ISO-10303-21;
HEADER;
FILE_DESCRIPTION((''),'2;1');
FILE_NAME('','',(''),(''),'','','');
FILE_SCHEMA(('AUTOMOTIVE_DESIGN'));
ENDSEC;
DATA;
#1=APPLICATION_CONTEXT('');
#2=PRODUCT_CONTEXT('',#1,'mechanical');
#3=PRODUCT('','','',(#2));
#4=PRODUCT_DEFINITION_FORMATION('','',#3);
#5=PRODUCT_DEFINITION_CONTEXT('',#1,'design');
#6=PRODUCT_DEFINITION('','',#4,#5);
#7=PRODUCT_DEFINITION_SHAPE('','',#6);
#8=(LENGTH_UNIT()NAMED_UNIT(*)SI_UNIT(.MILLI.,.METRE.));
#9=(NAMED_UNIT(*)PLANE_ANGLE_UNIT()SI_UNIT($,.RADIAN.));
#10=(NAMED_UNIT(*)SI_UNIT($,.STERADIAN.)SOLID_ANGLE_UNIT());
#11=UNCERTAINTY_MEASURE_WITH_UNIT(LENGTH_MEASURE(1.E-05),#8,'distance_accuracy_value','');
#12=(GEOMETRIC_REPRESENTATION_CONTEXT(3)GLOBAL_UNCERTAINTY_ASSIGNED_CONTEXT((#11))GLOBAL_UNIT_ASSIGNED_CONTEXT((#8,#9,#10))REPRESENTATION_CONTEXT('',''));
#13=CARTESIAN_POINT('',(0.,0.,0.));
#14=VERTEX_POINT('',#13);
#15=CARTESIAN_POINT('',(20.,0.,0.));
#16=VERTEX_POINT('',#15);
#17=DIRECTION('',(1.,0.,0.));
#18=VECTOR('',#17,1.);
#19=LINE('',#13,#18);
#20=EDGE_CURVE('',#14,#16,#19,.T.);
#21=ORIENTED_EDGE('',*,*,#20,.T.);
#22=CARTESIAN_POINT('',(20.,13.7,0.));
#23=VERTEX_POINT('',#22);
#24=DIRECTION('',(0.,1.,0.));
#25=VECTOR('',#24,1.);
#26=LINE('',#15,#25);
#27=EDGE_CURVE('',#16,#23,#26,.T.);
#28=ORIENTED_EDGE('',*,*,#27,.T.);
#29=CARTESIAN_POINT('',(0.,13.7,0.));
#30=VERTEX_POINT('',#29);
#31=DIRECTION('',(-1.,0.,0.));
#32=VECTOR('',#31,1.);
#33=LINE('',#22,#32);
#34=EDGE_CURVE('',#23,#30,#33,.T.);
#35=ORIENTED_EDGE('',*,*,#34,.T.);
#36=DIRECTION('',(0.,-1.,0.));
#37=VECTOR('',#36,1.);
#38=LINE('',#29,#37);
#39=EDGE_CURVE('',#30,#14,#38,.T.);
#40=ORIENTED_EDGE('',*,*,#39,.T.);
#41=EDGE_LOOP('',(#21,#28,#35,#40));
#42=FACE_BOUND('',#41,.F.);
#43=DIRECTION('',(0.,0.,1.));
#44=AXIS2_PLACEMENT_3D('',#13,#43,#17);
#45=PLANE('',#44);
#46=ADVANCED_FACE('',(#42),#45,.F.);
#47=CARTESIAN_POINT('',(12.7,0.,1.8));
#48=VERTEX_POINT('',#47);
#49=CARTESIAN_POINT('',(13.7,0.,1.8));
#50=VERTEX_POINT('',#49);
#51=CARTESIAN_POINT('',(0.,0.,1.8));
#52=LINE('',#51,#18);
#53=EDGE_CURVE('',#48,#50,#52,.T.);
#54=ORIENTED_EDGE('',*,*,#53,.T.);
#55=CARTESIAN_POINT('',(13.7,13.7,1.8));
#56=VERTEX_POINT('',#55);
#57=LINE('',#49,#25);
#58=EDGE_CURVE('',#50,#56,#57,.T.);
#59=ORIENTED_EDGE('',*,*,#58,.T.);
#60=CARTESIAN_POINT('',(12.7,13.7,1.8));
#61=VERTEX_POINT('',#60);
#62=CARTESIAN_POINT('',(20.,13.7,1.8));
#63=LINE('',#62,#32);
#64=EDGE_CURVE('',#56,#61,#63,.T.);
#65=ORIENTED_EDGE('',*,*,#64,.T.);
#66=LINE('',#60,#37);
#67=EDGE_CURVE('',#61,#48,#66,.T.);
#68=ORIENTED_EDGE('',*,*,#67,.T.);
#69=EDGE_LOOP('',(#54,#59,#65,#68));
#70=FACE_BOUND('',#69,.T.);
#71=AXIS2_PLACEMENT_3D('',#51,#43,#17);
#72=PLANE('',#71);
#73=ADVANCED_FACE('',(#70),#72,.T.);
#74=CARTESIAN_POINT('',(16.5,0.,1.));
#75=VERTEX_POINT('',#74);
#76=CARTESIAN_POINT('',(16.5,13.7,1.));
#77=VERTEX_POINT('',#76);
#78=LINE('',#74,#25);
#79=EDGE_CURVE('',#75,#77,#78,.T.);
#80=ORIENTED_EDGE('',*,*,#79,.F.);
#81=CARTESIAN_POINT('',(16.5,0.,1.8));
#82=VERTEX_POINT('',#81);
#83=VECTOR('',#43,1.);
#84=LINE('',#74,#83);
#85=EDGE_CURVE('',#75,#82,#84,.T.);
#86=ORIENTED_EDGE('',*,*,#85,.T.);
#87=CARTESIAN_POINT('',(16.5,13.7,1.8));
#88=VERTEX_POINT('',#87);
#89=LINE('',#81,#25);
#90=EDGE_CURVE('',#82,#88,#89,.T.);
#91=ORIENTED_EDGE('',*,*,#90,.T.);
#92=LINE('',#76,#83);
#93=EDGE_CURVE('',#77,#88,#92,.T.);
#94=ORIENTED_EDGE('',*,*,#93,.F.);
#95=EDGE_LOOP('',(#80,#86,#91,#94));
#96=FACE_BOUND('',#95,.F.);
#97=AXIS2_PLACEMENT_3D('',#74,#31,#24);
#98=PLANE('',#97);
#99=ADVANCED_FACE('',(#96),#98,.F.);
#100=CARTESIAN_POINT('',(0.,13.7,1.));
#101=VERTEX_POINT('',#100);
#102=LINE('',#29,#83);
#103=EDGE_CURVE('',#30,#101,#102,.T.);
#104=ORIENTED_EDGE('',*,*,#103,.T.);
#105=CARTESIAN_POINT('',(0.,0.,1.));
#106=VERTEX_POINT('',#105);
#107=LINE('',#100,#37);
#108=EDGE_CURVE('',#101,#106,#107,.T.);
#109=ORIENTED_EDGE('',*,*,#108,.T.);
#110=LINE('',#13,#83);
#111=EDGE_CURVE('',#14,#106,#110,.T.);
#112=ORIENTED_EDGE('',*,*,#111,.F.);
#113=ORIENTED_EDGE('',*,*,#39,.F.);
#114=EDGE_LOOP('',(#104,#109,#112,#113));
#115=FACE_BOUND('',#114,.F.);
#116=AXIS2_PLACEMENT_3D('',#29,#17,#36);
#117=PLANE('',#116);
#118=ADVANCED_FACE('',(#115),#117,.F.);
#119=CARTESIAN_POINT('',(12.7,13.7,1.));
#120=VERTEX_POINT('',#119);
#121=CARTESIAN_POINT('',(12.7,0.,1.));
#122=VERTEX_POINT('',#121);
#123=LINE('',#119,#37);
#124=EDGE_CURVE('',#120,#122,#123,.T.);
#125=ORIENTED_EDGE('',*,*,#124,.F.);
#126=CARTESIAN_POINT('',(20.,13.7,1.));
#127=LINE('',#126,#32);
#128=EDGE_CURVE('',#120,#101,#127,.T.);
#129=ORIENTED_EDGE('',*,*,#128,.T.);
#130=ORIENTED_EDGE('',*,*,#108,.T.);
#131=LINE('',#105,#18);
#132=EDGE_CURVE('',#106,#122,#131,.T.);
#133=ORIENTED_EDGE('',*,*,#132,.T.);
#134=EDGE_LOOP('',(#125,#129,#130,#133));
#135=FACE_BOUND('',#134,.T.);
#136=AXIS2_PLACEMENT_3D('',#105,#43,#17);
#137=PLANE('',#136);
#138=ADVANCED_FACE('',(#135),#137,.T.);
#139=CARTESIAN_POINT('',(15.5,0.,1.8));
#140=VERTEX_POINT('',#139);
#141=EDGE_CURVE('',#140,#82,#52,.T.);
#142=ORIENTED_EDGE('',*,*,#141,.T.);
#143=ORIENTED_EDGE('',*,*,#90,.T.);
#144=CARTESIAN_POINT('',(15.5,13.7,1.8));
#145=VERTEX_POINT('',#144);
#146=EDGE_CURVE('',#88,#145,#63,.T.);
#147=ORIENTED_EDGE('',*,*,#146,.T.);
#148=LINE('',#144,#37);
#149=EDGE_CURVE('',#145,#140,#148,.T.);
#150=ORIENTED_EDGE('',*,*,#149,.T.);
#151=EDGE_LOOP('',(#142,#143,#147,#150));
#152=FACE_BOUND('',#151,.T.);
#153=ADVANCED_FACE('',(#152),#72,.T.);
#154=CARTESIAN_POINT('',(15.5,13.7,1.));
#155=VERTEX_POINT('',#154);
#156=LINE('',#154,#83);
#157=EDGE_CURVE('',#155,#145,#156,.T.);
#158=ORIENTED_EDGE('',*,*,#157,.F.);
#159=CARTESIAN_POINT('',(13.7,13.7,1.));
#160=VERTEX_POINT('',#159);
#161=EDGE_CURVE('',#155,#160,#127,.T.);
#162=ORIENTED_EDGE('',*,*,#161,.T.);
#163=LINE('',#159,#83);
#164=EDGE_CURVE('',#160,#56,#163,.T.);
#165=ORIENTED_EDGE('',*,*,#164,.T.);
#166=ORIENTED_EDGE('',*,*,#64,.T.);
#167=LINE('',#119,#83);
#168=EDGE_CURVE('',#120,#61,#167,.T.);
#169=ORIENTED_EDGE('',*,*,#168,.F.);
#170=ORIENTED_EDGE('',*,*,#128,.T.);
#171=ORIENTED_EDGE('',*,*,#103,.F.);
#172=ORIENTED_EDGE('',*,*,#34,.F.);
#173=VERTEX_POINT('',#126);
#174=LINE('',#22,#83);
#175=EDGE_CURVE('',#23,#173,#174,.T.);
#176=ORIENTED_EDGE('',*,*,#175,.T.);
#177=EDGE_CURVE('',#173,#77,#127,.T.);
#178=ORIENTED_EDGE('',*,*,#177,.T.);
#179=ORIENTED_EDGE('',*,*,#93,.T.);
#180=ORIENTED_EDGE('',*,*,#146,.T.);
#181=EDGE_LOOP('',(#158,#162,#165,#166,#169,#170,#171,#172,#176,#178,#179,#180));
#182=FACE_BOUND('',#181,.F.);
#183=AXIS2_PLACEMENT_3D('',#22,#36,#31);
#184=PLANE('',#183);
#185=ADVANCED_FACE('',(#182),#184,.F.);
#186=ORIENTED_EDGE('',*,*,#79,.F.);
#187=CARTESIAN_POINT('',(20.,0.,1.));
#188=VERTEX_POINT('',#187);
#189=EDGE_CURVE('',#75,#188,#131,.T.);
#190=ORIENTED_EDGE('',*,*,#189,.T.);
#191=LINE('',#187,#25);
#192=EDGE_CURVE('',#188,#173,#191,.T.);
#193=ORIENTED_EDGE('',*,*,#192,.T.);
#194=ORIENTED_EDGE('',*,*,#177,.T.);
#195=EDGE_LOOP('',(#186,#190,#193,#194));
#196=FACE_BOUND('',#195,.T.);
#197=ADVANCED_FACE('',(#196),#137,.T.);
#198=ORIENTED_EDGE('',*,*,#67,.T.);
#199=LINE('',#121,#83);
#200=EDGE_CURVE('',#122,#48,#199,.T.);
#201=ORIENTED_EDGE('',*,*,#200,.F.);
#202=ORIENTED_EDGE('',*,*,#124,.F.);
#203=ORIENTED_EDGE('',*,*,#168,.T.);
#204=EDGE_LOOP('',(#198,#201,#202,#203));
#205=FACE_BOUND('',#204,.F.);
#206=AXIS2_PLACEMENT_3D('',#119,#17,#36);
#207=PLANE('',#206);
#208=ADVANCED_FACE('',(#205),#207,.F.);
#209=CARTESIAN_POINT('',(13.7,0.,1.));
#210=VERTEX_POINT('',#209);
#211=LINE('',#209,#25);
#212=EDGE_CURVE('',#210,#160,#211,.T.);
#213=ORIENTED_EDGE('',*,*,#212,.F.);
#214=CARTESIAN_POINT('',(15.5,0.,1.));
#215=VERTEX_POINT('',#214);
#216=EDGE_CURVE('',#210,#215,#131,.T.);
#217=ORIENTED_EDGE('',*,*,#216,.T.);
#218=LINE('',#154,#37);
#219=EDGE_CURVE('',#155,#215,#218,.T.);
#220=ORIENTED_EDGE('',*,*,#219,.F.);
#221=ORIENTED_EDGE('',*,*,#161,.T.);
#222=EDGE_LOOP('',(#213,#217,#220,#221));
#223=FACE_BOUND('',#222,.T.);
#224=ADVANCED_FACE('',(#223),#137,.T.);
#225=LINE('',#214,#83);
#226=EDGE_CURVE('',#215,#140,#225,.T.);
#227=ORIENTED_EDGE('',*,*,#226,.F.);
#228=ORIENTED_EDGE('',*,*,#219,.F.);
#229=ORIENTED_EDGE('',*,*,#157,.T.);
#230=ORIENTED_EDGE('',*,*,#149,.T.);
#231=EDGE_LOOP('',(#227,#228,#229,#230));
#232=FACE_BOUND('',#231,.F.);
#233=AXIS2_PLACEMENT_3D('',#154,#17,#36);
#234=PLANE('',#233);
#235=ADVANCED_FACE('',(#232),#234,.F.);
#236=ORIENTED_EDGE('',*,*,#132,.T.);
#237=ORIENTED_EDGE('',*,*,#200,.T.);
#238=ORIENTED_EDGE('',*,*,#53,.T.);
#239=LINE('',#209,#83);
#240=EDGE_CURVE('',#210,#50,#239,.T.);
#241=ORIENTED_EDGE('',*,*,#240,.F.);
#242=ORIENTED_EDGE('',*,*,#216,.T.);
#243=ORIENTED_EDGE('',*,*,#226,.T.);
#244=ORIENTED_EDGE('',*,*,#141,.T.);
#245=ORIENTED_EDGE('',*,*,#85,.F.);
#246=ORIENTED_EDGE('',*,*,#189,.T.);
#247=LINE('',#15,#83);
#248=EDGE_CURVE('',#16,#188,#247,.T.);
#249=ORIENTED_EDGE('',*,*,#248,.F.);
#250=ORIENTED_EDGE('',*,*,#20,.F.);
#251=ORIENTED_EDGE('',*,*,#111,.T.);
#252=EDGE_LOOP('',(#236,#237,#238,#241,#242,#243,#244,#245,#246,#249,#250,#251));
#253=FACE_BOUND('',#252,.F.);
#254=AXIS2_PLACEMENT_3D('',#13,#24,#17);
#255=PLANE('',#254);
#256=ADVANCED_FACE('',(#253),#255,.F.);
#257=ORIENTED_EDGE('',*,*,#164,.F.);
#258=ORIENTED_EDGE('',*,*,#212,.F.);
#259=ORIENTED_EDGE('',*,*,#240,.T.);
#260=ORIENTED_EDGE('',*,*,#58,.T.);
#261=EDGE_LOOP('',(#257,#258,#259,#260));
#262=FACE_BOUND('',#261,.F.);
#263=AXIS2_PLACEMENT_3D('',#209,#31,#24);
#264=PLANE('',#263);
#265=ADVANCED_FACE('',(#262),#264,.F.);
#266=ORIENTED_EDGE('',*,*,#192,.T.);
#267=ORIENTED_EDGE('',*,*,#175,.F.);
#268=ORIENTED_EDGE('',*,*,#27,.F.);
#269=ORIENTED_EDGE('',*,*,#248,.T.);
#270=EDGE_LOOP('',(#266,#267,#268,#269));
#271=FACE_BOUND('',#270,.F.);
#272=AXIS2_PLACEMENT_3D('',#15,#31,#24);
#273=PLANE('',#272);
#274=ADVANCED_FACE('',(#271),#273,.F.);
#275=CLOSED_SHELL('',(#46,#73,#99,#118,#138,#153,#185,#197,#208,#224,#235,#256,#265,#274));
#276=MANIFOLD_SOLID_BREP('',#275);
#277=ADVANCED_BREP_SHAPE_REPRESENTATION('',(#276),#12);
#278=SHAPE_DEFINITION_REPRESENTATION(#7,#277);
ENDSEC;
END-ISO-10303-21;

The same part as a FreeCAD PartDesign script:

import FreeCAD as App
import Part
import Sketcher

V = App.Vector


def add_polygon(sketch, points):
    """Adds a closed chain of lines whose ends are joined by coincident constraints."""
    first, n = sketch.GeometryCount, len(points)
    for a, b in zip(points, points[1:] + points[:1]):
        sketch.addGeometry(Part.LineSegment(App.Vector(*a, 0), App.Vector(*b, 0)), False)
    for i in range(n):
        sketch.addConstraint(Sketcher.Constraint("Coincident", first + i, 2, first + (i + 1) % n, 1))

doc = App.newDocument("Part")
body = doc.addObject("PartDesign::Body", "Body")

# Sketch on XY plane
sketch1 = body.newObject("Sketcher::SketchObject", "Sketch")
sketch1.AttachmentSupport = (doc.getObject("XY_Plane"), [""])
sketch1.MapMode = "FlatFace"
add_polygon(sketch1, [(0, 14), (0, 0), (20, 0), (20, 14)])  # lines 0-3
sketch1.addConstraint([
    Sketcher.Constraint("Vertical", 0),
    Sketcher.Constraint("Horizontal", 1),
    Sketcher.Constraint("Vertical", 2),
    Sketcher.Constraint("Horizontal", 3),
    Sketcher.Constraint("Coincident", 0, 2, -1, 1),
    Sketcher.Constraint("DistanceX", 1, 1, 1, 2, 20.0),
    Sketcher.Constraint("DistanceY", 0, 2, 0, 1, 13.7),
])
pad1 = body.newObject("PartDesign::Pad", "Pad")
pad1.Profile = sketch1
pad1.Length = 1

# Sketch on XY plane
sketch2 = body.newObject("Sketcher::SketchObject", "Sketch001")
sketch2.AttachmentSupport = (doc.getObject("XY_Plane"), [""])
sketch2.MapMode = "FlatFace"
sketch2.AttachmentOffset = App.Placement(V(0, 0, 1), App.Rotation())
add_polygon(sketch2, [(12.7, 13.7), (12.7, 0), (13.7, 0), (13.7, 13.7)])  # lines 0-3
add_polygon(sketch2, [(15.5, 13.7), (15.5, 0), (16.5, 0), (16.5, 13.7)])  # lines 4-7
sketch2.addConstraint([
    Sketcher.Constraint("Vertical", 0),
    Sketcher.Constraint("Horizontal", 1),
    Sketcher.Constraint("Vertical", 2),
    Sketcher.Constraint("Horizontal", 3),
    Sketcher.Constraint("Vertical", 4),
    Sketcher.Constraint("Horizontal", 5),
    Sketcher.Constraint("Vertical", 6),
    Sketcher.Constraint("Horizontal", 7),
    Sketcher.Constraint("PointOnObject", 0, 2, -1),
    Sketcher.Constraint("PointOnObject", 4, 2, -1),
    Sketcher.Constraint("Horizontal", 3, 2, 6, 2),
    Sketcher.Constraint("Equal", 3, 5),
    Sketcher.Constraint("DistanceX", 1, 1, 1, 2, 1.0),
    Sketcher.Constraint("DistanceX", 1, 2, 4, 2, 1.8),
    Sketcher.Constraint("DistanceY", 0, 2, 0, 1, 13.7),
    Sketcher.Constraint("DistanceX", -1, 1, 0, 2, 12.7),
])
pad2 = body.newObject("PartDesign::Pad", "Pad001")
pad2.Profile = sketch2
pad2.Length = 0.8

doc.recompute()
